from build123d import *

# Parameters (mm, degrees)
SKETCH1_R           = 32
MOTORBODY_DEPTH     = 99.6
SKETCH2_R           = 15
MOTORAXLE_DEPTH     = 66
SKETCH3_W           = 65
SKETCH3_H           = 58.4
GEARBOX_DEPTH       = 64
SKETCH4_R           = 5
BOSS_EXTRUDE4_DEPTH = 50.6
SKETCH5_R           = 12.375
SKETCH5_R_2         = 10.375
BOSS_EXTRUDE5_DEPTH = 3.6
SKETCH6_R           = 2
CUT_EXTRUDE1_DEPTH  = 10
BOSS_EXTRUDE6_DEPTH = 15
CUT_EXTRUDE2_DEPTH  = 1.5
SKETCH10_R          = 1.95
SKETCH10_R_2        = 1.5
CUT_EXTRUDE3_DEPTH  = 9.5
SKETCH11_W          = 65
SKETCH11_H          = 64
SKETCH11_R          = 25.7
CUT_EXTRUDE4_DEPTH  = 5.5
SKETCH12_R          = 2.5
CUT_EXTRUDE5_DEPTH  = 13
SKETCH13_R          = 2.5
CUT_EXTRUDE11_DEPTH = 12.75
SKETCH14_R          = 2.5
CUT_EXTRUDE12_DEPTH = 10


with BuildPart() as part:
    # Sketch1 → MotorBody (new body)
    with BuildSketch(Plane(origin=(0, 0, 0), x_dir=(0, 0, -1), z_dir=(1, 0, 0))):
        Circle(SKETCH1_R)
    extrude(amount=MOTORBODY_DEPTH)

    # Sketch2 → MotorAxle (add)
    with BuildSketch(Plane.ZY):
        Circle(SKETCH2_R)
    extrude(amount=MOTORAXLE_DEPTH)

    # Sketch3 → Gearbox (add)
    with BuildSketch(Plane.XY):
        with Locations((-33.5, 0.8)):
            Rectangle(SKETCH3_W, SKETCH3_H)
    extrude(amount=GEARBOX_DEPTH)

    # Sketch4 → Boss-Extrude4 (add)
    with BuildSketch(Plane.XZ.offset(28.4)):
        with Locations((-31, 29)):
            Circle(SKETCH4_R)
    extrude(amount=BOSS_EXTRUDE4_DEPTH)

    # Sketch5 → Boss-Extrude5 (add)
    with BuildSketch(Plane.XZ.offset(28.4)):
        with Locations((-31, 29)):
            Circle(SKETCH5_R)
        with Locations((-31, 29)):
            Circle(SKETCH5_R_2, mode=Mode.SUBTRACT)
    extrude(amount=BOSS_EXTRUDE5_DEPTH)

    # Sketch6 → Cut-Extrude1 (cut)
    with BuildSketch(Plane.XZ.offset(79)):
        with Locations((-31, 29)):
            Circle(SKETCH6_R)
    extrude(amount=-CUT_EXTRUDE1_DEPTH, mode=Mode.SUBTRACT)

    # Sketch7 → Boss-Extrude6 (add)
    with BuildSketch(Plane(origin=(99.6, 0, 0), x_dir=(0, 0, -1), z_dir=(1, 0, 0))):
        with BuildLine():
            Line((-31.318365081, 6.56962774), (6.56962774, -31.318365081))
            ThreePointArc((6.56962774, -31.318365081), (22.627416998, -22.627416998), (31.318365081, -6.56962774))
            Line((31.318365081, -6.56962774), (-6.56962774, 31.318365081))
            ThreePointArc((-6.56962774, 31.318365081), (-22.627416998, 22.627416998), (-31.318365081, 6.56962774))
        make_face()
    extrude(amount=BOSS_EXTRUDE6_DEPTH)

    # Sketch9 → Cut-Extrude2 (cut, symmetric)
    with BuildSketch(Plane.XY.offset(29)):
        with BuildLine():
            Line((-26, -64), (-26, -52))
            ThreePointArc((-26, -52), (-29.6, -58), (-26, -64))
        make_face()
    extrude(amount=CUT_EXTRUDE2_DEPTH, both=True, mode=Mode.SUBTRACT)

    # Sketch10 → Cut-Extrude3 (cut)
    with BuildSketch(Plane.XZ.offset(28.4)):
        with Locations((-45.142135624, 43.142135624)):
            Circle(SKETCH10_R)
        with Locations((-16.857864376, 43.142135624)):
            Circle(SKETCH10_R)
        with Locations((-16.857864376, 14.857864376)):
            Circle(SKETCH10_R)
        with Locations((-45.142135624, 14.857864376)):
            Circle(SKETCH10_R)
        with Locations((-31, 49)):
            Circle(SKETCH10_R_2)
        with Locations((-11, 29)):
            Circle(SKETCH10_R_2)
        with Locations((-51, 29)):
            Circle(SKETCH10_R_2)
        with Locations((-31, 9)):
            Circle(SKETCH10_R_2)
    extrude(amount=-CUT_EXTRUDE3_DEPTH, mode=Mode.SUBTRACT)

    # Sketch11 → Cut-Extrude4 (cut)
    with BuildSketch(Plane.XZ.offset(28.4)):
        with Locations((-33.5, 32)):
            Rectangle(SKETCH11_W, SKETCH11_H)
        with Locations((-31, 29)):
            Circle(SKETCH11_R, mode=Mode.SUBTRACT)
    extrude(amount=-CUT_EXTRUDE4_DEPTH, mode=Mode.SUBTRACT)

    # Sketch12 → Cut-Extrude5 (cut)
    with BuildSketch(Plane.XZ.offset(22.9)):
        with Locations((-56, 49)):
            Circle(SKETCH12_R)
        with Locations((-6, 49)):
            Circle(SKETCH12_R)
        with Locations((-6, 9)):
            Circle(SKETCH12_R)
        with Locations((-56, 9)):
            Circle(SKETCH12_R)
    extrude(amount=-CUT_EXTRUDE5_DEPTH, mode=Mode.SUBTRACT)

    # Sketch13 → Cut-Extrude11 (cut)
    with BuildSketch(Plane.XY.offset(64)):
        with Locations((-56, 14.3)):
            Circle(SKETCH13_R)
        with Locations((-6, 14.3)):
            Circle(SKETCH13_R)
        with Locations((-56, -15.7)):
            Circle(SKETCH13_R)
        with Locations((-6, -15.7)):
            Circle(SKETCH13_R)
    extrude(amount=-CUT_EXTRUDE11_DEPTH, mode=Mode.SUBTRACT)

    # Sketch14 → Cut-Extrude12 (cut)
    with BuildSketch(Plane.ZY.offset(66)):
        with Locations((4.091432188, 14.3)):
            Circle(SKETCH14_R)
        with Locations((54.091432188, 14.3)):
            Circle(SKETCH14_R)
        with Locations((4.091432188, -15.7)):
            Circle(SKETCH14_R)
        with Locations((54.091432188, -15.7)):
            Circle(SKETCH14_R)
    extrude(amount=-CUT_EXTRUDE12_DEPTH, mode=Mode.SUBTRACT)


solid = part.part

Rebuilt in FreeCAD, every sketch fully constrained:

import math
import FreeCAD as App
import Part
import Sketcher
Q = App.Units.Quantity


def add_polygon(sketch, points):
    """Adds a closed chain of lines whose ends are joined by coincident constraints."""
    first, n = sketch.GeometryCount, len(points)
    for a, b in zip(points, points[1:] + points[:1]):
        sketch.addGeometry(Part.LineSegment(App.Vector(*a, 0), App.Vector(*b, 0)), False)
    for i in range(n):
        sketch.addConstraint(Sketcher.Constraint("Coincident", first + i, 2, first + (i + 1) % n, 1))

doc = App.newDocument("Part")
body = doc.addObject("PartDesign::Body", "Body")

# Sketch on YZ plane
sketch1 = doc.addObject("Sketcher::SketchObject", "Sketch")
body.addObject(sketch1)
sketch1.AttachmentSupport = (doc.YZ_Plane, [""])
sketch1.MapMode = "FlatFace"
sketch1.addGeometry(Part.Circle(App.Vector(0, 0, 0), App.Vector(0, 0, 1), 32), False)
sketch1.addConstraint([
    Sketcher.Constraint("Coincident", 0, 3, -1, 1),
    Sketcher.Constraint("Diameter", 0, Q("64 mm")),
])
pad1 = doc.addObject("PartDesign::Pad", "Pad")
body.addObject(pad1)
pad1.Profile = sketch1
pad1.Length = 99.6

# Sketch on YZ plane
sketch2 = doc.addObject("Sketcher::SketchObject", "Sketch001")
body.addObject(sketch2)
sketch2.AttachmentSupport = (doc.YZ_Plane, [""])
sketch2.MapMode = "FlatFace"
sketch2.addGeometry(Part.Circle(App.Vector(0, 0, 0), App.Vector(0, 0, 1), 15), False)
sketch2.addConstraint([
    Sketcher.Constraint("Coincident", 0, 3, -1, 1),
    Sketcher.Constraint("Diameter", 0, Q("30 mm")),
])
pad2 = doc.addObject("PartDesign::Pad", "Pad001")
body.addObject(pad2)
pad2.Profile = sketch2
pad2.Length = 66
pad2.Reversed = True

# Sketch on XY plane
sketch3 = doc.addObject("Sketcher::SketchObject", "Sketch002")
body.addObject(sketch3)
sketch3.AttachmentSupport = (doc.XY_Plane, [""])
sketch3.MapMode = "FlatFace"
add_polygon(sketch3, [(-66, 30), (-66, -28), (-1, -28), (-1, 30)])  # lines 0-3
sketch3.addConstraint([
    Sketcher.Constraint("Vertical", 0),
    Sketcher.Constraint("Horizontal", 1),
    Sketcher.Constraint("Vertical", 2),
    Sketcher.Constraint("Horizontal", 3),
    Sketcher.Constraint("DistanceX", 1, 1, 1, 2, Q("65 mm")),
    Sketcher.Constraint("DistanceY", 0, 2, 0, 1, Q("58.4 mm")),
    Sketcher.Constraint("DistanceX", 0, 2, -1, 1, Q("66 mm")),
    Sketcher.Constraint("DistanceY", -1, 1, 2, 2, Q("30 mm")),
])
pad3 = doc.addObject("PartDesign::Pad", "Pad002")
body.addObject(pad3)
pad3.Profile = sketch3
pad3.Length = 64

# Sketch on XZ plane
sketch4 = doc.addObject("Sketcher::SketchObject", "Sketch003")
body.addObject(sketch4)
sketch4.AttachmentSupport = (doc.XZ_Plane, [""])
sketch4.MapMode = "FlatFace"
sketch4.AttachmentOffset = App.Placement(App.Vector(0, 0, 28.4), App.Rotation())
sketch4.addGeometry(Part.Circle(App.Vector(-31, 29, 0), App.Vector(0, 0, 1), 5), False)
sketch4.addConstraint([
    Sketcher.Constraint("Diameter", 0, Q("10 mm")),
    Sketcher.Constraint("DistanceX", 0, 3, -1, 1, Q("31 mm")),
    Sketcher.Constraint("DistanceY", -1, 1, 0, 3, Q("29 mm")),
])
pad4 = doc.addObject("PartDesign::Pad", "Pad003")
body.addObject(pad4)
pad4.Profile = sketch4
pad4.Length = 50.6

# Sketch on XZ plane
sketch5 = doc.addObject("Sketcher::SketchObject", "Sketch004")
body.addObject(sketch5)
sketch5.AttachmentSupport = (doc.XZ_Plane, [""])
sketch5.MapMode = "FlatFace"
sketch5.AttachmentOffset = App.Placement(App.Vector(0, 0, 28.4), App.Rotation())
sketch5.addGeometry([
    Part.Circle(App.Vector(-31, 29, 0), App.Vector(0, 0, 1), 12),
    Part.Circle(App.Vector(-31, 29, 0), App.Vector(0, 0, 1), 10),
], False)
sketch5.addConstraint([
    Sketcher.Constraint("Coincident", 1, 3, 0, 3),
    Sketcher.Constraint("Diameter", 0, Q("24.75 mm")),
    Sketcher.Constraint("Diameter", 1, Q("20.75 mm")),
    Sketcher.Constraint("DistanceX", 0, 3, -1, 1, Q("31 mm")),
    Sketcher.Constraint("DistanceY", -1, 1, 0, 3, Q("29 mm")),
])
pad5 = doc.addObject("PartDesign::Pad", "Pad004")
body.addObject(pad5)
pad5.Profile = sketch5
pad5.Length = 3.6

# Sketch on XZ plane
sketch6 = doc.addObject("Sketcher::SketchObject", "Sketch005")
body.addObject(sketch6)
sketch6.AttachmentSupport = (doc.XZ_Plane, [""])
sketch6.MapMode = "FlatFace"
sketch6.AttachmentOffset = App.Placement(App.Vector(0, 0, 79), App.Rotation())
sketch6.addGeometry(Part.Circle(App.Vector(-31, 29, 0), App.Vector(0, 0, 1), 2), False)
sketch6.addConstraint([
    Sketcher.Constraint("Diameter", 0, Q("4 mm")),
    Sketcher.Constraint("DistanceX", 0, 3, -1, 1, Q("31 mm")),
    Sketcher.Constraint("DistanceY", -1, 1, 0, 3, Q("29 mm")),
])
pocket1 = doc.addObject("PartDesign::Pocket", "Pocket")
body.addObject(pocket1)
pocket1.Profile = sketch6
pocket1.Length = 10

# Sketch on YZ plane
sketch7 = doc.addObject("Sketcher::SketchObject", "Sketch006")
body.addObject(sketch7)
sketch7.AttachmentSupport = (doc.YZ_Plane, [""])
sketch7.MapMode = "FlatFace"
sketch7.AttachmentOffset = App.Placement(App.Vector(0, 0, 99.6), App.Rotation())
sketch7.addGeometry([
    Part.LineSegment(App.Vector(7, 31, 0), App.Vector(-31, -7, 0)),
    Part.ArcOfCircle(Part.Circle(App.Vector(0, 0, 0), App.Vector(0, 0, 1), 32), math.radians(-168), math.radians(-102)),
    Part.LineSegment(App.Vector(-7, -31, 0), App.Vector(31, 7, 0)),
    Part.ArcOfCircle(Part.Circle(App.Vector(0, 0, 0), App.Vector(0, 0, 1), 32), math.radians(12), math.radians(78)),
], False)
sketch7.addConstraint([
    Sketcher.Constraint("Coincident", 0, 2, 1, 1),
    Sketcher.Constraint("Coincident", 1, 2, 2, 1),
    Sketcher.Constraint("Coincident", 2, 2, 3, 1),
    Sketcher.Constraint("Coincident", 3, 2, 0, 1),
    Sketcher.Constraint("Coincident", 1, 3, -1, 1),
    Sketcher.Constraint("Coincident", 3, 3, -1, 1),
    Sketcher.Constraint("Equal", 1, 3),
    Sketcher.Constraint("Parallel", 0, 2),
    Sketcher.Constraint("Equal", 0, 2),
    Sketcher.Constraint("Radius", 1, Q("32 mm")),
    Sketcher.Constraint("Angle", 0, Q("-135 deg")),
    Sketcher.Constraint("DistanceX", 0, 2, 2, 2, Q("62.63673 mm")),
])
pad6 = doc.addObject("PartDesign::Pad", "Pad005")
body.addObject(pad6)
pad6.Profile = sketch7
pad6.Length = 15

# Sketch on XY plane
sketch8 = doc.addObject("Sketcher::SketchObject", "Sketch007")
body.addObject(sketch8)
sketch8.AttachmentSupport = (doc.XY_Plane, [""])
sketch8.MapMode = "FlatFace"
sketch8.AttachmentOffset = App.Placement(App.Vector(0, 0, 29), App.Rotation())
sketch8.addGeometry([
    Part.LineSegment(App.Vector(-26, -64, 0), App.Vector(-26, -52, 0)),
    Part.ArcOfCircle(Part.Circle(App.Vector(-23, -58, 0), App.Vector(0, 0, 1), 7), math.radians(118), math.radians(242)),
], False)
sketch8.addConstraint([
    Sketcher.Constraint("Coincident", 0, 1, 1, 2),
    Sketcher.Constraint("Coincident", 1, 1, 0, 2),
    Sketcher.Constraint("Vertical", 0),
    Sketcher.Constraint("Radius", 1, Q("6.8 mm")),
    Sketcher.Constraint("DistanceY", 0, 1, 0, 2, Q("12 mm")),
    Sketcher.Constraint("DistanceY", 1, 3, -1, 1, Q("58 mm")),
    Sketcher.Constraint("DistanceX", 0, 1, -1, 1, Q("26 mm")),
])
pocket2 = doc.addObject("PartDesign::Pocket", "Pocket001")
body.addObject(pocket2)
pocket2.Profile = sketch8
pocket2.Length = 3
pocket2.Midplane = True

# Sketch on XZ plane
sketch9 = doc.addObject("Sketcher::SketchObject", "Sketch008")
body.addObject(sketch9)
sketch9.AttachmentSupport = (doc.XZ_Plane, [""])
sketch9.MapMode = "FlatFace"
sketch9.AttachmentOffset = App.Placement(App.Vector(0, 0, 28.4), App.Rotation())
sketch9.addGeometry([
    Part.Circle(App.Vector(-45.1, 43.1, 0), App.Vector(0, 0, 1), 1.9),  # 0
    Part.Circle(App.Vector(-16.9, 43.1, 0), App.Vector(0, 0, 1), 1.9),  # 1
    Part.Circle(App.Vector(-16.9, 14.9, 0), App.Vector(0, 0, 1), 1.9),  # 2
    Part.Circle(App.Vector(-45.1, 14.9, 0), App.Vector(0, 0, 1), 1.9),  # 3
    Part.Circle(App.Vector(-31, 49, 0), App.Vector(0, 0, 1), 1.5),  # 4
    Part.Circle(App.Vector(-11, 29, 0), App.Vector(0, 0, 1), 1.5),  # 5
    Part.Circle(App.Vector(-51, 29, 0), App.Vector(0, 0, 1), 1.5),  # 6
    Part.Circle(App.Vector(-31, 9, 0), App.Vector(0, 0, 1), 1.5),  # 7
], False)
sketch9.addConstraint([
    Sketcher.Constraint("Equal", 0, 1),
    Sketcher.Constraint("Equal", 1, 2),
    Sketcher.Constraint("Equal", 2, 3),
    Sketcher.Constraint("Equal", 4, 5),
    Sketcher.Constraint("Equal", 5, 6),
    Sketcher.Constraint("Equal", 6, 7),
    Sketcher.Constraint("Horizontal", 0, 3, 1, 3),
    Sketcher.Constraint("Horizontal", 2, 3, 3, 3),
    Sketcher.Constraint("Horizontal", 5, 3, 6, 3),
    Sketcher.Constraint("Vertical", 1, 3, 2, 3),
    Sketcher.Constraint("Vertical", 0, 3, 3, 3),
    Sketcher.Constraint("Vertical", 4, 3, 7, 3),
    Sketcher.Constraint("Diameter", 4, Q("3 mm")),
    Sketcher.Constraint("Diameter", 0, Q("3.9 mm")),
    Sketcher.Constraint("DistanceX", 4, 3, -1, 1, Q("31 mm")),
    Sketcher.Constraint("DistanceY", -1, 1, 4, 3, Q("49 mm")),
    Sketcher.Constraint("DistanceX", 5, 3, -1, 1, Q("11 mm")),
    Sketcher.Constraint("DistanceY", -1, 1, 5, 3, Q("29 mm")),
    Sketcher.Constraint("DistanceX", 6, 3, -1, 1, Q("51 mm")),
    Sketcher.Constraint("DistanceY", -1, 1, 7, 3, Q("9 mm")),
    Sketcher.Constraint("DistanceX", 0, 3, 1, 3, Q("28.284271 mm")),
    Sketcher.Constraint("DistanceY", 2, 3, 1, 3, Q("28.284271 mm")),
    Sketcher.Constraint("DistanceX", 0, 3, -1, 1, Q("45.142136 mm")),
    Sketcher.Constraint("DistanceY", -1, 1, 0, 3, Q("43.142136 mm")),
])
pocket3 = doc.addObject("PartDesign::Pocket", "Pocket002")
body.addObject(pocket3)
pocket3.Profile = sketch9
pocket3.Length = 9.5

# Sketch on XZ plane
sketch10 = doc.addObject("Sketcher::SketchObject", "Sketch009")
body.addObject(sketch10)
sketch10.AttachmentSupport = (doc.XZ_Plane, [""])
sketch10.MapMode = "FlatFace"
sketch10.AttachmentOffset = App.Placement(App.Vector(0, 0, 28.4), App.Rotation())
add_polygon(sketch10, [(-66, 64), (-66, 0), (-1, 0), (-1, 64)])  # lines 0-3
sketch10.addGeometry(Part.Circle(App.Vector(-31, 29, 0), App.Vector(0, 0, 1), 26), False)  # 4
sketch10.addConstraint([
    Sketcher.Constraint("Vertical", 0),
    Sketcher.Constraint("Horizontal", 1),
    Sketcher.Constraint("Vertical", 2),
    Sketcher.Constraint("Horizontal", 3),
    Sketcher.Constraint("PointOnObject", 0, 2, -1),
    Sketcher.Constraint("Diameter", 4, Q("51.4 mm")),
    Sketcher.Constraint("DistanceX", 1, 1, 1, 2, Q("65 mm")),
    Sketcher.Constraint("DistanceY", 0, 2, 0, 1, Q("64 mm")),
    Sketcher.Constraint("DistanceX", 4, 3, -1, 1, Q("31 mm")),
    Sketcher.Constraint("DistanceY", -1, 1, 4, 3, Q("29 mm")),
    Sketcher.Constraint("DistanceX", 0, 2, -1, 1, Q("66 mm")),
])
pocket4 = doc.addObject("PartDesign::Pocket", "Pocket003")
body.addObject(pocket4)
pocket4.Profile = sketch10
pocket4.Length = 5.5

# Sketch on XZ plane
sketch11 = doc.addObject("Sketcher::SketchObject", "Sketch010")
body.addObject(sketch11)
sketch11.AttachmentSupport = (doc.XZ_Plane, [""])
sketch11.MapMode = "FlatFace"
sketch11.AttachmentOffset = App.Placement(App.Vector(0, 0, 22.9), App.Rotation())
sketch11.addGeometry([
    Part.Circle(App.Vector(-56, 49, 0), App.Vector(0, 0, 1), 2.5),
    Part.Circle(App.Vector(-6, 49, 0), App.Vector(0, 0, 1), 2.5),
    Part.Circle(App.Vector(-6, 9, 0), App.Vector(0, 0, 1), 2.5),
    Part.Circle(App.Vector(-56, 9, 0), App.Vector(0, 0, 1), 2.5),
], False)
sketch11.addConstraint([
    Sketcher.Constraint("Equal", 0, 1),
    Sketcher.Constraint("Equal", 1, 2),
    Sketcher.Constraint("Equal", 2, 3),
    Sketcher.Constraint("Horizontal", 0, 3, 1, 3),
    Sketcher.Constraint("Horizontal", 2, 3, 3, 3),
    Sketcher.Constraint("Vertical", 1, 3, 2, 3),
    Sketcher.Constraint("Vertical", 0, 3, 3, 3),
    Sketcher.Constraint("Diameter", 0, Q("5 mm")),
    Sketcher.Constraint("DistanceX", 0, 3, -1, 1, Q("56 mm")),
    Sketcher.Constraint("DistanceY", -1, 1, 0, 3, Q("49 mm")),
    Sketcher.Constraint("DistanceX", 1, 3, -1, 1, Q("6 mm")),
    Sketcher.Constraint("DistanceY", -1, 1, 2, 3, Q("9 mm")),
])
pocket5 = doc.addObject("PartDesign::Pocket", "Pocket004")
body.addObject(pocket5)
pocket5.Profile = sketch11
pocket5.Length = 13

# Sketch on XY plane
sketch12 = doc.addObject("Sketcher::SketchObject", "Sketch011")
body.addObject(sketch12)
sketch12.AttachmentSupport = (doc.XY_Plane, [""])
sketch12.MapMode = "FlatFace"
sketch12.AttachmentOffset = App.Placement(App.Vector(0, 0, 64), App.Rotation())
sketch12.addGeometry([
    Part.Circle(App.Vector(-56, 14.3, 0), App.Vector(0, 0, 1), 2.5),
    Part.Circle(App.Vector(-6, 14.3, 0), App.Vector(0, 0, 1), 2.5),
    Part.Circle(App.Vector(-56, -15.7, 0), App.Vector(0, 0, 1), 2.5),
    Part.Circle(App.Vector(-6, -15.7, 0), App.Vector(0, 0, 1), 2.5),
], False)
sketch12.addConstraint([
    Sketcher.Constraint("Equal", 0, 1),
    Sketcher.Constraint("Equal", 1, 2),
    Sketcher.Constraint("Equal", 2, 3),
    Sketcher.Constraint("Horizontal", 0, 3, 1, 3),
    Sketcher.Constraint("Horizontal", 2, 3, 3, 3),
    Sketcher.Constraint("Vertical", 0, 3, 2, 3),
    Sketcher.Constraint("Vertical", 1, 3, 3, 3),
    Sketcher.Constraint("Diameter", 0, Q("5 mm")),
    Sketcher.Constraint("DistanceX", 0, 3, -1, 1, Q("56 mm")),
    Sketcher.Constraint("DistanceX", 1, 3, -1, 1, Q("6 mm")),
    Sketcher.Constraint("DistanceY", 2, 3, 0, 3, Q("30 mm")),
    Sketcher.Constraint("DistanceY", -1, 1, 0, 3, Q("14.3 mm")),
])
pocket6 = doc.addObject("PartDesign::Pocket", "Pocket005")
body.addObject(pocket6)
pocket6.Profile = sketch12
pocket6.Length = 12.75

# Sketch on YZ plane
sketch13 = doc.addObject("Sketcher::SketchObject", "Sketch012")
body.addObject(sketch13)
sketch13.AttachmentSupport = (doc.YZ_Plane, [""])
sketch13.MapMode = "FlatFace"
sketch13.AttachmentOffset = App.Placement(App.Vector(0, 0, -66), App.Rotation())
sketch13.addGeometry([
    Part.Circle(App.Vector(14.3, 4.1, 0), App.Vector(0, 0, 1), 2.5),
    Part.Circle(App.Vector(14.3, 54.1, 0), App.Vector(0, 0, 1), 2.5),
    Part.Circle(App.Vector(-15.7, 4.1, 0), App.Vector(0, 0, 1), 2.5),
    Part.Circle(App.Vector(-15.7, 54.1, 0), App.Vector(0, 0, 1), 2.5),
], False)
sketch13.addConstraint([
    Sketcher.Constraint("Equal", 0, 1),
    Sketcher.Constraint("Equal", 1, 2),
    Sketcher.Constraint("Equal", 2, 3),
    Sketcher.Constraint("Horizontal", 0, 3, 2, 3),
    Sketcher.Constraint("Horizontal", 1, 3, 3, 3),
    Sketcher.Constraint("Vertical", 0, 3, 1, 3),
    Sketcher.Constraint("Vertical", 2, 3, 3, 3),
    Sketcher.Constraint("Diameter", 0, Q("5 mm")),
    Sketcher.Constraint("DistanceY", 0, 3, 1, 3, Q("50 mm")),
    Sketcher.Constraint("DistanceX", 2, 3, 0, 3, Q("30 mm")),
    Sketcher.Constraint("DistanceX", -1, 1, 0, 3, Q("14.3 mm")),
    Sketcher.Constraint("DistanceY", -1, 1, 0, 3, Q("4.091432 mm")),
])
pocket7 = doc.addObject("PartDesign::Pocket", "Pocket006")
body.addObject(pocket7)
pocket7.Profile = sketch13
pocket7.Length = 10
pocket7.Reversed = True

doc.recompute()
